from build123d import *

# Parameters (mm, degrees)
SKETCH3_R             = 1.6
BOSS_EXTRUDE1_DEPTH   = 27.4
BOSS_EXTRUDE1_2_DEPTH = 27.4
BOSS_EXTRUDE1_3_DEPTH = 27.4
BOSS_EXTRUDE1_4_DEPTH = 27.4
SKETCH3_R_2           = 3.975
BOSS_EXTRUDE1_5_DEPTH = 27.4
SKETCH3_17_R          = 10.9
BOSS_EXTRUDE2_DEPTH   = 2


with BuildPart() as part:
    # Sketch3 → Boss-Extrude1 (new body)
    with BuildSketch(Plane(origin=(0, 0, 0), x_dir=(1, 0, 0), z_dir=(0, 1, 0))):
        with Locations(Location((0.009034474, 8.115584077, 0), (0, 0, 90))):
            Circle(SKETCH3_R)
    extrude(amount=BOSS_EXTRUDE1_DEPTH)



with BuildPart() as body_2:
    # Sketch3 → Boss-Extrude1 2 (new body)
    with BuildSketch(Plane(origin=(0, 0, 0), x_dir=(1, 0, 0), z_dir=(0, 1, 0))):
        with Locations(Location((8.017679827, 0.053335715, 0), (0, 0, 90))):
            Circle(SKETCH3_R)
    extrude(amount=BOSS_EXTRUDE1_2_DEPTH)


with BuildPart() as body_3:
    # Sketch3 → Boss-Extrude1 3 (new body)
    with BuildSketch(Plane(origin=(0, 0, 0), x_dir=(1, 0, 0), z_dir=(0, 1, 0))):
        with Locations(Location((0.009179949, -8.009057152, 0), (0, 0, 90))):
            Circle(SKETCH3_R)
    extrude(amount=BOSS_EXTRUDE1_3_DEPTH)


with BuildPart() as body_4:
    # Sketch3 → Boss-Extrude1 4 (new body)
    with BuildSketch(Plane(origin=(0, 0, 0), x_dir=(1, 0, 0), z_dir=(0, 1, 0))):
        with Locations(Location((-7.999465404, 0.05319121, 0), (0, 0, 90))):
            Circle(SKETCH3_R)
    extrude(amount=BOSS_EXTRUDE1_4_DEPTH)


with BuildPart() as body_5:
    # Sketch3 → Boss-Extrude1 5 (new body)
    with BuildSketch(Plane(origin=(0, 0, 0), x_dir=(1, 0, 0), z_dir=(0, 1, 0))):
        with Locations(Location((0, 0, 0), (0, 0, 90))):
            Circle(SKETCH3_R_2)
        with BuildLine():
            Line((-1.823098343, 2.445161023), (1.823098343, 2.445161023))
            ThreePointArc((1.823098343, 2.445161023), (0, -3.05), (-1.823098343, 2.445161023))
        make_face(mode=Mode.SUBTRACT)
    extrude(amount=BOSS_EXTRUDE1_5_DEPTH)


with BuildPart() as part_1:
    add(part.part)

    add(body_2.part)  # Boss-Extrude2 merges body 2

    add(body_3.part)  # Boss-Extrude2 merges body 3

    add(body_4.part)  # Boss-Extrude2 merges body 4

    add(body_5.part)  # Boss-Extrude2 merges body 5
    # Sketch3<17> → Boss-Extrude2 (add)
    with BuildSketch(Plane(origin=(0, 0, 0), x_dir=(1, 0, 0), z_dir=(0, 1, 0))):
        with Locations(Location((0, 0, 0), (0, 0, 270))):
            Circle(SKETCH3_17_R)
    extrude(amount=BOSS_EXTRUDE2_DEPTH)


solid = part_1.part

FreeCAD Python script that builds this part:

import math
import FreeCAD as App
import Part
import Sketcher

V = App.Vector

doc = App.newDocument("Part")
body = doc.addObject("PartDesign::Body", "Body")

# Sketch on XZ plane
sketch1 = body.newObject("Sketcher::SketchObject", "Sketch")
sketch1.AttachmentSupport = (doc.getObject("XZ_Plane"), [""])
sketch1.MapMode = "FlatFace"
sketch1.addGeometry(Part.Circle(V(0, -8.1, 0), V(0, 0, 1), 1.6), False)
sketch1.addConstraint(Sketcher.Constraint("Diameter", 0, 3.2))
sketch1.addConstraint(Sketcher.Constraint("DistanceX", -1, 1, 0, 3, 0.009034))
sketch1.addConstraint(Sketcher.Constraint("DistanceY", 0, 3, -1, 1, 8.115584))
pad1 = body.newObject("PartDesign::Pad", "Pad")
pad1.Profile = sketch1
pad1.Length = 27.4
pad1.Reversed = True
body2 = doc.addObject("PartDesign::Body", "Body001")

# Sketch on XZ plane
sketch2 = body2.newObject("Sketcher::SketchObject", "Sketch001")
sketch2.AttachmentSupport = (doc.getObject("XZ_Plane001"), [""])
sketch2.MapMode = "FlatFace"
sketch2.addGeometry(Part.Circle(V(8, -0.1, 0), V(0, 0, 1), 1.6), False)
sketch2.addConstraint(Sketcher.Constraint("Diameter", 0, 3.2))
sketch2.addConstraint(Sketcher.Constraint("DistanceX", -1, 1, 0, 3, 8.01768))
sketch2.addConstraint(Sketcher.Constraint("DistanceY", 0, 3, -1, 1, 0.053336))
pad2 = body2.newObject("PartDesign::Pad", "Pad001")
pad2.Profile = sketch2
pad2.Length = 27.4
pad2.Reversed = True
body3 = doc.addObject("PartDesign::Body", "Body002")

# Sketch on XZ plane
sketch3 = body3.newObject("Sketcher::SketchObject", "Sketch002")
sketch3.AttachmentSupport = (doc.getObject("XZ_Plane002"), [""])
sketch3.MapMode = "FlatFace"
sketch3.addGeometry(Part.Circle(V(0, 8, 0), V(0, 0, 1), 1.6), False)
sketch3.addConstraint(Sketcher.Constraint("Diameter", 0, 3.2))
sketch3.addConstraint(Sketcher.Constraint("DistanceX", -1, 1, 0, 3, 0.00918))
sketch3.addConstraint(Sketcher.Constraint("DistanceY", -1, 1, 0, 3, 8.009057))
pad3 = body3.newObject("PartDesign::Pad", "Pad002")
pad3.Profile = sketch3
pad3.Length = 27.4
pad3.Reversed = True
body4 = doc.addObject("PartDesign::Body", "Body003")

# Sketch on XZ plane
sketch4 = body4.newObject("Sketcher::SketchObject", "Sketch003")
sketch4.AttachmentSupport = (doc.getObject("XZ_Plane003"), [""])
sketch4.MapMode = "FlatFace"
sketch4.addGeometry(Part.Circle(V(-8, -0.1, 0), V(0, 0, 1), 1.6), False)
sketch4.addConstraint(Sketcher.Constraint("Diameter", 0, 3.2))
sketch4.addConstraint(Sketcher.Constraint("DistanceY", 0, 3, -1, 1, 0.053191))
sketch4.addConstraint(Sketcher.Constraint("DistanceX", 0, 3, -1, 1, 7.999465))
pad4 = body4.newObject("PartDesign::Pad", "Pad003")
pad4.Profile = sketch4
pad4.Length = 27.4
pad4.Reversed = True
body5 = doc.addObject("PartDesign::Body", "Body004")

# Sketch on XZ plane
sketch5 = body5.newObject("Sketcher::SketchObject", "Sketch004")
sketch5.AttachmentSupport = (doc.getObject("XZ_Plane004"), [""])
sketch5.MapMode = "FlatFace"
sketch5.addGeometry(Part.Circle(V(0, 0, 0), V(0, 0, 1), 4), False)
sketch5.addGeometry(Part.ArcOfCircle(Part.Circle(V(0, 0, 0), V(0, 0, 1), 3), math.radians(-53), math.radians(233)), False)
sketch5.addGeometry(Part.LineSegment(V(-1.8, -2.4, 0), V(1.8, -2.4, 0)), False)
sketch5.addConstraint(Sketcher.Constraint("Coincident", 1, 1, 2, 2))
sketch5.addConstraint(Sketcher.Constraint("Coincident", 2, 1, 1, 2))
sketch5.addConstraint(Sketcher.Constraint("Horizontal", 2))
sketch5.addConstraint(Sketcher.Constraint("Coincident", 0, 3, -1, 1))
sketch5.addConstraint(Sketcher.Constraint("Coincident", 1, 3, -1, 1))
sketch5.addConstraint(Sketcher.Constraint("Diameter", 0, 7.95))
sketch5.addConstraint(Sketcher.Constraint("Radius", 1, 3.05))
sketch5.addConstraint(Sketcher.Constraint("DistanceX", -1, 1, 1, 1, 1.823098))
pad5 = body5.newObject("PartDesign::Pad", "Pad004")
pad5.Profile = sketch5
pad5.Length = 27.4
pad5.Reversed = True
body.AllowCompound = True
doc.recompute()

boolean = body.newObject("PartDesign::Boolean", "Boolean")
boolean.Type = "Fuse"
boolean.addObjects([body2])
doc.recompute()

boolean2 = body.newObject("PartDesign::Boolean", "Boolean001")
boolean2.Type = "Fuse"
boolean2.addObjects([body3])
doc.recompute()

boolean3 = body.newObject("PartDesign::Boolean", "Boolean002")
boolean3.Type = "Fuse"
boolean3.addObjects([body4])
doc.recompute()

boolean4 = body.newObject("PartDesign::Boolean", "Boolean003")
boolean4.Type = "Fuse"
boolean4.addObjects([body5])

# Sketch on XZ plane
sketch6 = body.newObject("Sketcher::SketchObject", "Sketch005")
sketch6.AttachmentSupport = (doc.getObject("XZ_Plane"), [""])
sketch6.MapMode = "FlatFace"
sketch6.addGeometry(Part.Circle(V(0, 0, 0), V(0, 0, 1), 11), False)
sketch6.addConstraint(Sketcher.Constraint("Coincident", 0, 3, -1, 1))
sketch6.addConstraint(Sketcher.Constraint("Diameter", 0, 21.8))
pad6 = body.newObject("PartDesign::Pad", "Pad005")
pad6.Profile = sketch6
pad6.Length = 2
pad6.Reversed = True

doc.recompute()
